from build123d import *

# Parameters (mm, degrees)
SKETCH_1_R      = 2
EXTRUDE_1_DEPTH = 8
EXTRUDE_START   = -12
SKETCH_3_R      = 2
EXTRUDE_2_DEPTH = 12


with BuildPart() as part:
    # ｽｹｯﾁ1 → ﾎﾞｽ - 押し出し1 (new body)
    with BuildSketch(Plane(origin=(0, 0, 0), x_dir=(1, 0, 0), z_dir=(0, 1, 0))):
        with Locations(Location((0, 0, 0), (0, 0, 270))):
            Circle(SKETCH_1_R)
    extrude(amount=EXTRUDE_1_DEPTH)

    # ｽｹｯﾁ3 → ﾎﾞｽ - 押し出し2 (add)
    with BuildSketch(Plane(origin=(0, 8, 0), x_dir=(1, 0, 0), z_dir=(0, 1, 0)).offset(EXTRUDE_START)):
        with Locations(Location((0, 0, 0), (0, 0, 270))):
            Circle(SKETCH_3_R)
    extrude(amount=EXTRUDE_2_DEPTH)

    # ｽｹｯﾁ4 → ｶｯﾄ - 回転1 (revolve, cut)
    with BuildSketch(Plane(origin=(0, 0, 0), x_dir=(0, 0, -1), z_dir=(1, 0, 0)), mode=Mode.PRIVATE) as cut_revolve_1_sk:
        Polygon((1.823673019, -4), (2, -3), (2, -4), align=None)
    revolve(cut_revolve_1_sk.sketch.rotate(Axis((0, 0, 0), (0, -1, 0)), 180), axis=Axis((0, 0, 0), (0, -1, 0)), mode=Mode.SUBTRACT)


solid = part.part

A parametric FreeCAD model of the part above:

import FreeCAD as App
import Part
import Sketcher
Q = App.Units.Quantity


def add_polygon(sketch, points):
    """Adds a closed chain of lines whose ends are joined by coincident constraints."""
    first, n = sketch.GeometryCount, len(points)
    for a, b in zip(points, points[1:] + points[:1]):
        sketch.addGeometry(Part.LineSegment(App.Vector(*a, 0), App.Vector(*b, 0)), False)
    for i in range(n):
        sketch.addConstraint(Sketcher.Constraint("Coincident", first + i, 2, first + (i + 1) % n, 1))

doc = App.newDocument("Part")
body = doc.addObject("PartDesign::Body", "Body")

sketch1 = doc.addObject("Sketcher::SketchObject", "Sketch")
body.addObject(sketch1)
sketch1.AttachmentSupport = (doc.XZ_Plane, [""])
sketch1.MapMode = "FlatFace"
sketch1.addGeometry(Part.Circle(App.Vector(0, 0, 0), App.Vector(0, 0, 1), 2), False)
sketch1.addConstraint(Sketcher.Constraint("Coincident", 0, 3, -1, 1))
sketch1.addConstraint(Sketcher.Constraint("Diameter", 0, Q("4 mm")))
pad1 = doc.addObject("PartDesign::Pad", "Pad")
body.addObject(pad1)
pad1.Profile = sketch1
pad1.Length = 8
pad1.Reversed = True

sketch2 = doc.addObject("Sketcher::SketchObject", "Sketch001")
body.addObject(sketch2)
sketch2.AttachmentSupport = (doc.XZ_Plane, [""])
sketch2.MapMode = "FlatFace"
sketch2.AttachmentOffset = App.Placement(App.Vector(0, 0, 4), App.Rotation())
sketch2.addGeometry(Part.Circle(App.Vector(0, 0, 0), App.Vector(0, 0, 1), 2), False)
sketch2.addConstraint(Sketcher.Constraint("Coincident", 0, 3, -1, 1))
sketch2.addConstraint(Sketcher.Constraint("Diameter", 0, Q("4 mm")))
pad2 = doc.addObject("PartDesign::Pad", "Pad001")
body.addObject(pad2)
pad2.Profile = sketch2
pad2.Length = 12
pad2.Reversed = True

sketch3 = doc.addObject("Sketcher::SketchObject", "Sketch002")
body.addObject(sketch3)
sketch3.AttachmentSupport = (doc.YZ_Plane, [""])
sketch3.MapMode = "FlatFace"
add_polygon(sketch3, [(-3, -2), (-4, -1.823673), (-4, -2)])
sketch3.addConstraint(Sketcher.Constraint("Vertical", 1))
sketch3.addConstraint(Sketcher.Constraint("Horizontal", 2))
sketch3.addConstraint(Sketcher.Constraint("DistanceX", 2, 1, 2, 2, Q("1 mm")))
sketch3.addConstraint(Sketcher.Constraint("Angle", 0, Q("170 deg")))
sketch3.addConstraint(Sketcher.Constraint("DistanceX", 0, 2, -1, 1, Q("4 mm")))
sketch3.addConstraint(Sketcher.Constraint("DistanceY", 1, 2, -1, 1, Q("2 mm")))
groove = doc.addObject("PartDesign::Groove", "Groove")
body.addObject(groove)
groove.Profile = sketch3
groove.ReferenceAxis = (sketch3, ["H_Axis"])
groove.Angle = 360

doc.recompute()
